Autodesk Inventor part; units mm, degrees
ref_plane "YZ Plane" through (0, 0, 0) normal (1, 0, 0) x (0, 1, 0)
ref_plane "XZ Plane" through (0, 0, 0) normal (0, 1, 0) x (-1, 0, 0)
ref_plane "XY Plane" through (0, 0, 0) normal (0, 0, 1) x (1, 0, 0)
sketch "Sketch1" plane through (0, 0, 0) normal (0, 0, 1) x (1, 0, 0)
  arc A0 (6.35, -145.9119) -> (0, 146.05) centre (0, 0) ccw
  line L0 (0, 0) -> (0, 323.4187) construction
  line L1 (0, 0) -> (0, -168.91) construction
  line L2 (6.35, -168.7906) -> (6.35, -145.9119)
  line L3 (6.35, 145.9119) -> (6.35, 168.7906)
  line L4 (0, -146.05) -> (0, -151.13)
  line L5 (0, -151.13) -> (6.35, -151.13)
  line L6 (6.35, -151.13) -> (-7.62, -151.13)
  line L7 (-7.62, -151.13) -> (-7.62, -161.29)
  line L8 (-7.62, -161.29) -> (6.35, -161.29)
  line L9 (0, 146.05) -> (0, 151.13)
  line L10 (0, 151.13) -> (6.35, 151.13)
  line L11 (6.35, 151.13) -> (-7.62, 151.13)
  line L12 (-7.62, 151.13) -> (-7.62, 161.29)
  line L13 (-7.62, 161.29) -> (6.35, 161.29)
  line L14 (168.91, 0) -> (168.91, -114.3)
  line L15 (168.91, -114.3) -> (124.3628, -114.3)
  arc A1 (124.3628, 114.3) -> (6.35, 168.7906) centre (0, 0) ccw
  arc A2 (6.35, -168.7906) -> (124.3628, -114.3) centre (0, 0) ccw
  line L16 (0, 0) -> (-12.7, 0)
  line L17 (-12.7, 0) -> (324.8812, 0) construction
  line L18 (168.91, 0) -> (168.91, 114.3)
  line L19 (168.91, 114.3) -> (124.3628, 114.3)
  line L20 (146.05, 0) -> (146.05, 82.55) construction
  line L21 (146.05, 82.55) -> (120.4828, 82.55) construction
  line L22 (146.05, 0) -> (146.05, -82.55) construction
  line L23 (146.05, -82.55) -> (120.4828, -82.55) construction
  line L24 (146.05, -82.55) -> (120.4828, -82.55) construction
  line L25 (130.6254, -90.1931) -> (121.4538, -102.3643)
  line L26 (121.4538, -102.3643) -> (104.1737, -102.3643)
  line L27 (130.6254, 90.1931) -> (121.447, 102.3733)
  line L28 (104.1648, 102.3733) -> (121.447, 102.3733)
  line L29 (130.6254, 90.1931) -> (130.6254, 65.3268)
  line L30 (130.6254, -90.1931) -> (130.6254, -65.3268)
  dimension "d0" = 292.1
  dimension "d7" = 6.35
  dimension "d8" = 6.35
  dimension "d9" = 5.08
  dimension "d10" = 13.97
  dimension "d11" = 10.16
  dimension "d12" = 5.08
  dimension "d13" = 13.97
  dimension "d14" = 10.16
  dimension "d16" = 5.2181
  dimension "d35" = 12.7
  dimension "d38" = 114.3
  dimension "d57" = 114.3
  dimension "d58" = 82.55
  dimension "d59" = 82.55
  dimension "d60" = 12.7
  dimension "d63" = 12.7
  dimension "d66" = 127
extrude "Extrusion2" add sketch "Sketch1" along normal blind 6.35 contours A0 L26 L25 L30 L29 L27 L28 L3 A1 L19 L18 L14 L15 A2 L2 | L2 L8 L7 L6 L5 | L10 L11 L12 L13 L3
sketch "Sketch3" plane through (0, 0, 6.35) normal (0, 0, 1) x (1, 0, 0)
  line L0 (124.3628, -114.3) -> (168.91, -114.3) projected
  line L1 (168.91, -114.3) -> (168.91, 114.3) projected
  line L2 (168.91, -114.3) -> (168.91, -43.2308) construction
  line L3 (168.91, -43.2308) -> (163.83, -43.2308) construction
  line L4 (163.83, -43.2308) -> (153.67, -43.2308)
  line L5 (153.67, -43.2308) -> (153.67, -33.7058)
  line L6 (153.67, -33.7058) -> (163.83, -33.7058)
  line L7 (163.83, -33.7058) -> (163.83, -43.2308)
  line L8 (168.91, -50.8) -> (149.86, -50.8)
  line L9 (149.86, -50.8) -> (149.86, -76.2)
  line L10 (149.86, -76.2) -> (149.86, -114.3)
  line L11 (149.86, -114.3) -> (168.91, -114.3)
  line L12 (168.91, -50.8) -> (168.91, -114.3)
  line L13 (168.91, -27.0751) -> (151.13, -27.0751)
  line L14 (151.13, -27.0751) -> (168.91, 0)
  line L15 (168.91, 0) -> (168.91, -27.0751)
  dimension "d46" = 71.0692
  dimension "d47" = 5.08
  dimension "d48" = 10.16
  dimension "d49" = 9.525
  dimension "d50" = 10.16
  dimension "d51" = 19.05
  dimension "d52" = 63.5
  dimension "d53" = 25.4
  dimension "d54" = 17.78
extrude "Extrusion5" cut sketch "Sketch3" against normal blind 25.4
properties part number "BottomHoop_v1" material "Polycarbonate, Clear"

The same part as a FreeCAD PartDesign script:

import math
import FreeCAD as App
import Part
import Sketcher
Q = App.Units.Quantity

doc = App.newDocument("Part")
params = doc.addObject("Spreadsheet::Sheet", "Params")
for row, (alias, value) in enumerate([
    ("sketch1_radius", "5.75 in"),
    ("sketch1_height", "0.4 in"),
    ("sketch1_width", "0.55 in"),
    ("sketch1_radius2", "6.65 in"),
    ("sketch1_length", "0.6 in"),
    ("pad1_length", "0.25 in"),
    ("sketch2_width", "0.7 in"),
    ("sketch2_width2", "0.4 in"),
    ("sketch2_height", "2.5 in"),
    ("sketch2_width3", "0.75 in"),
    ("sketch2_height2", "0.375 in"),
    ("pocket1_length", "1 in"),
], start=1):
    params.set(f"A{row}", alias)
    params.set(f"B{row}", "=" + value)
    params.setAlias(f"B{row}", alias)

body = doc.addObject("PartDesign::Body", "Body")

# Sketch on XY plane
sketch1 = doc.addObject("Sketcher::SketchObject", "Sketch")
body.addObject(sketch1)
sketch1.AttachmentSupport = (doc.XY_Plane, [""])
sketch1.MapMode = "FlatFace"
sketch1.addGeometry([
    Part.ArcOfCircle(Part.Circle(App.Vector(0, 0, 0), App.Vector(0, 0, 1), 146.050009), math.radians(-87.508094), math.radians(-44.498067)),  # 0
    Part.LineSegment(App.Vector(6.35, -145.9119, 0), App.Vector(6.35, -151.13, 0)),  # 1
    Part.LineSegment(App.Vector(6.35, -151.13, 0), App.Vector(-7.62, -151.13, 0)),  # 2
    Part.LineSegment(App.Vector(-7.62, -151.13, 0), App.Vector(-7.62, -161.29, 0)),  # 3
    Part.LineSegment(App.Vector(-7.62, -161.29, 0), App.Vector(6.35, -161.29, 0)),  # 4
    Part.LineSegment(App.Vector(6.35, -161.29, 0), App.Vector(6.35, -168.7906, 0)),  # 5
    Part.ArcOfCircle(Part.Circle(App.Vector(0, 0, 0), App.Vector(0, 0, 1), 168.910023), math.radians(-87.845516), math.radians(-42.585654)),  # 6
    Part.LineSegment(App.Vector(124.3628, -114.3, 0), App.Vector(168.91, -114.3, 0)),  # 7
    Part.LineSegment(App.Vector(168.91, -114.3, 0), App.Vector(168.91, 114.3, 0)),  # 8
    Part.LineSegment(App.Vector(168.91, 114.3, 0), App.Vector(124.3628, 114.3, 0)),  # 9
    Part.ArcOfCircle(Part.Circle(App.Vector(0, 0, 0), App.Vector(0, 0, 1), 168.910003), math.radians(42.585654), math.radians(87.845516)),  # 10
    Part.LineSegment(App.Vector(6.35, 168.7906, 0), App.Vector(6.35, 161.29, 0)),  # 11
    Part.LineSegment(App.Vector(6.35, 161.29, 0), App.Vector(-7.62, 161.29, 0)),  # 12
    Part.LineSegment(App.Vector(-7.62, 161.29, 0), App.Vector(-7.62, 151.13, 0)),  # 13
    Part.LineSegment(App.Vector(-7.62, 151.13, 0), App.Vector(6.35, 151.13, 0)),  # 14
    Part.LineSegment(App.Vector(6.35, 151.13, 0), App.Vector(6.35, 145.9119, 0)),  # 15
    Part.ArcOfCircle(Part.Circle(App.Vector(0, 0, 0), App.Vector(0, 0, 1), 146.050009), math.radians(44.503032), math.radians(87.508094)),  # 16
    Part.LineSegment(App.Vector(104.1648, 102.3733, 0), App.Vector(121.447, 102.3733, 0)),  # 17
    Part.LineSegment(App.Vector(121.447, 102.3733, 0), App.Vector(130.6254, 90.1931, 0)),  # 18
    Part.LineSegment(App.Vector(130.6254, 90.1931, 0), App.Vector(130.6254, 65.3268, 0)),  # 19
    Part.ArcOfCircle(Part.Circle(App.Vector(0, 0, 0), App.Vector(0, 0, 1), 146.050009), math.radians(-26.569999), math.radians(26.569999)),  # 20
    Part.LineSegment(App.Vector(130.6254, -65.3268, 0), App.Vector(130.6254, -90.1931, 0)),  # 21
    Part.LineSegment(App.Vector(130.6254, -90.1931, 0), App.Vector(121.4538, -102.3643, 0)),  # 22
    Part.LineSegment(App.Vector(121.4538, -102.3643, 0), App.Vector(104.1737, -102.3643, 0)),  # 23
], False)
sketch1.addConstraint([
    Sketcher.Constraint("Coincident", 0, 1, 1, 1),
    Sketcher.Constraint("Coincident", 1, 2, 2, 1),
    Sketcher.Constraint("Coincident", 2, 2, 3, 1),
    Sketcher.Constraint("Coincident", 3, 2, 4, 1),
    Sketcher.Constraint("Coincident", 4, 2, 5, 1),
    Sketcher.Constraint("Coincident", 5, 2, 6, 1),
    Sketcher.Constraint("Coincident", 6, 2, 7, 1),
    Sketcher.Constraint("Coincident", 7, 2, 8, 1),
    Sketcher.Constraint("Coincident", 8, 2, 9, 1),
    Sketcher.Constraint("Coincident", 9, 2, 10, 1),
    Sketcher.Constraint("Coincident", 10, 2, 11, 1),
    Sketcher.Constraint("Coincident", 11, 2, 12, 1),
    Sketcher.Constraint("Coincident", 12, 2, 13, 1),
    Sketcher.Constraint("Coincident", 13, 2, 14, 1),
    Sketcher.Constraint("Coincident", 14, 2, 15, 1),
    Sketcher.Constraint("Coincident", 15, 2, 16, 2),
    Sketcher.Constraint("Coincident", 16, 1, 17, 1),
    Sketcher.Constraint("Coincident", 17, 2, 18, 1),
    Sketcher.Constraint("Coincident", 18, 2, 19, 1),
    Sketcher.Constraint("Coincident", 19, 2, 20, 2),
    Sketcher.Constraint("Coincident", 20, 1, 21, 1),
    Sketcher.Constraint("Coincident", 21, 2, 22, 1),
    Sketcher.Constraint("Coincident", 22, 2, 23, 1),
    Sketcher.Constraint("Coincident", 23, 2, 0, 2),
    Sketcher.Constraint("Vertical", 1),
    Sketcher.Constraint("Horizontal", 2),
    Sketcher.Constraint("Vertical", 3),
    Sketcher.Constraint("Horizontal", 4),
    Sketcher.Constraint("Vertical", 5),
    Sketcher.Constraint("Horizontal", 7),
    Sketcher.Constraint("Vertical", 8),
    Sketcher.Constraint("Horizontal", 9),
    Sketcher.Constraint("Vertical", 11),
    Sketcher.Constraint("Horizontal", 12),
    Sketcher.Constraint("Vertical", 13),
    Sketcher.Constraint("Horizontal", 14),
    Sketcher.Constraint("Vertical", 15),
    Sketcher.Constraint("Horizontal", 17),
    Sketcher.Constraint("Vertical", 19),
    Sketcher.Constraint("Vertical", 21),
    Sketcher.Constraint("Horizontal", 23),
    Sketcher.Constraint("Coincident", 0, 3, -1, 1),
    Sketcher.Constraint("Coincident", 6, 3, -1, 1),
    Sketcher.Constraint("Coincident", 10, 3, -1, 1),
    Sketcher.Constraint("Coincident", 16, 3, -1, 1),
    Sketcher.Constraint("Coincident", 20, 3, -1, 1),
    Sketcher.Constraint("Equal", 6, 10),
    Sketcher.Constraint("Equal", 0, 16),
    Sketcher.Constraint("Equal", 16, 20),
    Sketcher.Constraint("Symmetric", 4, 2, 11, 2, -1),
    Sketcher.Constraint("Symmetric", 2, 2, 13, 2, -1),
    Sketcher.Constraint("Symmetric", 18, 2, 21, 2, -1),
    Sketcher.Constraint("Vertical", 1, 2, 4, 2),
    Sketcher.Constraint("Vertical", 6, 2, 9, 2),
    Sketcher.Constraint("Vertical", 11, 2, 14, 2),
    Sketcher.Constraint("Radius", 0, Q("5.75 in")),
    Sketcher.Constraint("DistanceY", 3, 2, 3, 1, Q("0.4 in")),
    Sketcher.Constraint("Angle", 22, Q("-126.9998 deg")),
    Sketcher.Constraint("DistanceX", 2, 2, 2, 1, Q("0.55 in")),
    Sketcher.Constraint("DistanceY", 6, 2, -1, 1, Q("4.5 in")),
    Sketcher.Constraint("DistanceX", -1, 1, 1, 2, Q("0.25 in")),
    Sketcher.Constraint("Radius", 6, Q("6.65 in")),
    Sketcher.Constraint("Angle", 18, Q("-53 deg")),
    Sketcher.Constraint("Distance", 22, Q("0.6 in")),
    Sketcher.Constraint("DistanceY", 1, 2, 1, 1, Q("5.218 mm")),
    Sketcher.Constraint("DistanceX", 0, 1, 7, 2, Q("6.4 in")),
    Sketcher.Constraint("DistanceY", 19, 2, 19, 1, Q("0.979 in")),
    Sketcher.Constraint("DistanceX", 17, 1, 17, 2, Q("0.6804 in")),
    Sketcher.Constraint("DistanceX", 23, 2, 23, 1, Q("17.28 mm")),
])
sketch1.setExpression("Constraints[55]", "Params.sketch1_radius")
sketch1.setExpression("Constraints[56]", "Params.sketch1_height")
sketch1.setExpression("Constraints[58]", "Params.sketch1_width")
sketch1.setExpression("Constraints[61]", "Params.sketch1_radius2")
sketch1.setExpression("Constraints[63]", "Params.sketch1_length")
pad1 = doc.addObject("PartDesign::Pad", "Pad")
body.addObject(pad1)
pad1.Profile = sketch1
pad1.setExpression("Length", "Params.pad1_length")

# Sketch on XY plane
sketch2 = doc.addObject("Sketcher::SketchObject", "Sketch001")
body.addObject(sketch2)
sketch2.AttachmentSupport = (doc.XY_Plane, [""])
sketch2.MapMode = "FlatFace"
sketch2.AttachmentOffset = App.Placement(App.Vector(0, 0, 0.25 * 25.4), App.Rotation())
sketch2.addGeometry([
    Part.LineSegment(App.Vector(149.86, -50.8, 0), App.Vector(149.86, -114.3, 0)),  # 0
    Part.LineSegment(App.Vector(149.86, -114.3, 0), App.Vector(168.91, -114.3, 0)),  # 1
    Part.LineSegment(App.Vector(168.91, -114.3, 0), App.Vector(168.91, -50.8, 0)),  # 2
    Part.LineSegment(App.Vector(168.91, -50.8, 0), App.Vector(149.86, -50.8, 0)),  # 3
    Part.LineSegment(App.Vector(151.13, -27.0751, 0), App.Vector(168.91, -27.0751, 0)),  # 4
    Part.LineSegment(App.Vector(168.91, -27.0751, 0), App.Vector(168.91, 0, 0)),  # 5
    Part.LineSegment(App.Vector(168.91, 0, 0), App.Vector(151.13, -27.0751, 0)),  # 6
    Part.LineSegment(App.Vector(153.67, -43.2308, 0), App.Vector(163.83, -43.2308, 0)),  # 7
    Part.LineSegment(App.Vector(163.83, -43.2308, 0), App.Vector(163.83, -33.7058, 0)),  # 8
    Part.LineSegment(App.Vector(163.83, -33.7058, 0), App.Vector(153.67, -33.7058, 0)),  # 9
    Part.LineSegment(App.Vector(153.67, -33.7058, 0), App.Vector(153.67, -43.2308, 0)),  # 10
], False)
sketch2.addConstraint([
    Sketcher.Constraint("Coincident", 0, 2, 1, 1),
    Sketcher.Constraint("Coincident", 1, 2, 2, 1),
    Sketcher.Constraint("Coincident", 2, 2, 3, 1),
    Sketcher.Constraint("Coincident", 3, 2, 0, 1),
    Sketcher.Constraint("Coincident", 4, 2, 5, 1),
    Sketcher.Constraint("Coincident", 5, 2, 6, 1),
    Sketcher.Constraint("Coincident", 6, 2, 4, 1),
    Sketcher.Constraint("Coincident", 7, 2, 8, 1),
    Sketcher.Constraint("Coincident", 8, 2, 9, 1),
    Sketcher.Constraint("Coincident", 9, 2, 10, 1),
    Sketcher.Constraint("Coincident", 10, 2, 7, 1),
    Sketcher.Constraint("Vertical", 0),
    Sketcher.Constraint("Horizontal", 1),
    Sketcher.Constraint("Vertical", 2),
    Sketcher.Constraint("Horizontal", 3),
    Sketcher.Constraint("Horizontal", 4),
    Sketcher.Constraint("Vertical", 5),
    Sketcher.Constraint("Horizontal", 7),
    Sketcher.Constraint("Vertical", 8),
    Sketcher.Constraint("Horizontal", 9),
    Sketcher.Constraint("Vertical", 10),
    Sketcher.Constraint("PointOnObject", 5, 2, -1),
    Sketcher.Constraint("Vertical", 2, 2, 4, 2),
    Sketcher.Constraint("DistanceX", 4, 1, 4, 2, Q("0.7 in")),
    Sketcher.Constraint("DistanceX", 7, 1, 7, 2, Q("0.4 in")),
    Sketcher.Constraint("DistanceY", 0, 2, 0, 1, Q("2.5 in")),
    Sketcher.Constraint("DistanceX", 1, 1, 1, 2, Q("0.75 in")),
    Sketcher.Constraint("DistanceX", 7, 2, 2, 2, Q("0.2 in")),
    Sketcher.Constraint("DistanceY", 8, 1, 8, 2, Q("0.375 in")),
    Sketcher.Constraint("DistanceY", 2, 2, -1, 1, Q("2 in")),
    Sketcher.Constraint("DistanceX", -1, 1, 0, 2, Q("5.9 in")),
    Sketcher.Constraint("DistanceY", 7, 2, -1, 1, Q("1.702 in")),
    Sketcher.Constraint("DistanceY", 5, 1, 5, 2, Q("27.075 mm")),
])
sketch2.setExpression("Constraints[23]", "Params.sketch2_width")
sketch2.setExpression("Constraints[24]", "Params.sketch2_width2")
sketch2.setExpression("Constraints[25]", "Params.sketch2_height")
sketch2.setExpression("Constraints[26]", "Params.sketch2_width3")
sketch2.setExpression("Constraints[28]", "Params.sketch2_height2")
pocket1 = doc.addObject("PartDesign::Pocket", "Pocket")
body.addObject(pocket1)
pocket1.Profile = sketch2
pocket1.setExpression("Length", "Params.pocket1_length")

doc.recompute()
